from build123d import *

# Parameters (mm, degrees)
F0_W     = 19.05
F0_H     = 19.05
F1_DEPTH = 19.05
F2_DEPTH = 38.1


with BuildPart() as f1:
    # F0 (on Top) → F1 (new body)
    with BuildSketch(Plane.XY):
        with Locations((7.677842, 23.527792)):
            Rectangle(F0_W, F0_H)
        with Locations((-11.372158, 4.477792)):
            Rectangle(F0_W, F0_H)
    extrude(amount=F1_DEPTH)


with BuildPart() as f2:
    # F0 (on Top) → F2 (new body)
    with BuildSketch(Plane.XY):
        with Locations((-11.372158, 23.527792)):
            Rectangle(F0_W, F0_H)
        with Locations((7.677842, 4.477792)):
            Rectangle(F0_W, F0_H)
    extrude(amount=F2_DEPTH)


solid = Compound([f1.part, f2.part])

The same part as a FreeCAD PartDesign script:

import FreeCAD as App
import Part
import Sketcher
from FreeCAD import Vector
Q = App.Units.Quantity

doc = App.newDocument("Part")
body = doc.addObject("PartDesign::Body", "Body")
body.AllowCompound = True

sketch1 = doc.addObject("Sketcher::SketchObject", "Sketch")
body.addObject(sketch1)
sketch1.AttachmentSupport = (doc.XY_Plane, [""])
sketch1.MapMode = "FlatFace"
sketch1.addGeometry([
    Part.LineSegment(Vector(-2, 33, 0), Vector(-2, 14, 0)),
    Part.LineSegment(Vector(-2, 14, 0), Vector(17, 14, 0)),
    Part.LineSegment(Vector(17, 14, 0), Vector(17, 33, 0)),
    Part.LineSegment(Vector(17, 33, 0), Vector(-2, 33, 0)),
    Part.LineSegment(Vector(-21, 14, 0), Vector(-21, -5, 0)),
    Part.LineSegment(Vector(-21, -5, 0), Vector(-2, -5, 0)),
    Part.LineSegment(Vector(-2, -5, 0), Vector(-2, 14, 0)),
    Part.LineSegment(Vector(-2, 14, 0), Vector(-21, 14, 0)),
], False)
sketch1.addConstraint([
    Sketcher.Constraint("Coincident", 0, 2, 1, 1),
    Sketcher.Constraint("Coincident", 1, 2, 2, 1),
    Sketcher.Constraint("Coincident", 2, 2, 3, 1),
    Sketcher.Constraint("Coincident", 3, 2, 0, 1),
    Sketcher.Constraint("Coincident", 4, 2, 5, 1),
    Sketcher.Constraint("Coincident", 5, 2, 6, 1),
    Sketcher.Constraint("Coincident", 6, 2, 7, 1),
    Sketcher.Constraint("Coincident", 7, 2, 4, 1),
    Sketcher.Constraint("Vertical", 0),
    Sketcher.Constraint("Horizontal", 1),
    Sketcher.Constraint("Vertical", 2),
    Sketcher.Constraint("Horizontal", 3),
    Sketcher.Constraint("Vertical", 4),
    Sketcher.Constraint("Horizontal", 5),
    Sketcher.Constraint("Vertical", 6),
    Sketcher.Constraint("Horizontal", 7),
    Sketcher.Constraint("Coincident", 6, 2, 0, 2),
    Sketcher.Constraint("Equal", 3, 5),
    Sketcher.Constraint("Equal", 7, 0),
    Sketcher.Constraint("Equal", 2, 4),
    Sketcher.Constraint("DistanceX", 1, 1, 1, 2, Q("0.75 in")),
    Sketcher.Constraint("DistanceX", 0, 2, -1, 1, 1.847158),
    Sketcher.Constraint("DistanceY", -1, 1, 2, 2, 33.052792),
])
pad1 = doc.addObject("PartDesign::Pad", "Pad")
body.addObject(pad1)
pad1.Profile = sketch1
pad1.Length = Q("0.75 in")
body2 = doc.addObject("PartDesign::Body", "Body001")
body2.AllowCompound = True

sketch2 = doc.addObject("Sketcher::SketchObject", "Sketch001")
body2.addObject(sketch2)
sketch2.AttachmentSupport = (doc.getObject("XY_Plane001"), [""])
sketch2.MapMode = "FlatFace"
sketch2.addGeometry([
    Part.LineSegment(Vector(-21, 33, 0), Vector(-21, 14, 0)),
    Part.LineSegment(Vector(-21, 14, 0), Vector(-2, 14, 0)),
    Part.LineSegment(Vector(-2, 14, 0), Vector(-2, 33, 0)),
    Part.LineSegment(Vector(-2, 33, 0), Vector(-21, 33, 0)),
    Part.LineSegment(Vector(-2, 14, 0), Vector(-2, -5, 0)),
    Part.LineSegment(Vector(-2, -5, 0), Vector(17, -5, 0)),
    Part.LineSegment(Vector(17, -5, 0), Vector(17, 14, 0)),
    Part.LineSegment(Vector(17, 14, 0), Vector(-2, 14, 0)),
], False)
sketch2.addConstraint([
    Sketcher.Constraint("Coincident", 0, 2, 1, 1),
    Sketcher.Constraint("Coincident", 1, 2, 2, 1),
    Sketcher.Constraint("Coincident", 2, 2, 3, 1),
    Sketcher.Constraint("Coincident", 3, 2, 0, 1),
    Sketcher.Constraint("Coincident", 4, 2, 5, 1),
    Sketcher.Constraint("Coincident", 5, 2, 6, 1),
    Sketcher.Constraint("Coincident", 6, 2, 7, 1),
    Sketcher.Constraint("Coincident", 7, 2, 4, 1),
    Sketcher.Constraint("Vertical", 0),
    Sketcher.Constraint("Horizontal", 1),
    Sketcher.Constraint("Vertical", 2),
    Sketcher.Constraint("Horizontal", 3),
    Sketcher.Constraint("Vertical", 4),
    Sketcher.Constraint("Horizontal", 5),
    Sketcher.Constraint("Vertical", 6),
    Sketcher.Constraint("Horizontal", 7),
    Sketcher.Constraint("Coincident", 7, 2, 1, 2),
    Sketcher.Constraint("Equal", 3, 5),
    Sketcher.Constraint("Equal", 7, 0),
    Sketcher.Constraint("Equal", 2, 4),
    Sketcher.Constraint("DistanceX", 1, 1, 1, 2, Q("0.75 in")),
    Sketcher.Constraint("DistanceX", 0, 2, -1, 1, 20.897158),
    Sketcher.Constraint("DistanceY", -1, 1, 2, 2, 33.052792),
])
pad2 = doc.addObject("PartDesign::Pad", "Pad001")
body2.addObject(pad2)
pad2.Profile = sketch2
pad2.Length = Q("1.5 in")

doc.recompute()
